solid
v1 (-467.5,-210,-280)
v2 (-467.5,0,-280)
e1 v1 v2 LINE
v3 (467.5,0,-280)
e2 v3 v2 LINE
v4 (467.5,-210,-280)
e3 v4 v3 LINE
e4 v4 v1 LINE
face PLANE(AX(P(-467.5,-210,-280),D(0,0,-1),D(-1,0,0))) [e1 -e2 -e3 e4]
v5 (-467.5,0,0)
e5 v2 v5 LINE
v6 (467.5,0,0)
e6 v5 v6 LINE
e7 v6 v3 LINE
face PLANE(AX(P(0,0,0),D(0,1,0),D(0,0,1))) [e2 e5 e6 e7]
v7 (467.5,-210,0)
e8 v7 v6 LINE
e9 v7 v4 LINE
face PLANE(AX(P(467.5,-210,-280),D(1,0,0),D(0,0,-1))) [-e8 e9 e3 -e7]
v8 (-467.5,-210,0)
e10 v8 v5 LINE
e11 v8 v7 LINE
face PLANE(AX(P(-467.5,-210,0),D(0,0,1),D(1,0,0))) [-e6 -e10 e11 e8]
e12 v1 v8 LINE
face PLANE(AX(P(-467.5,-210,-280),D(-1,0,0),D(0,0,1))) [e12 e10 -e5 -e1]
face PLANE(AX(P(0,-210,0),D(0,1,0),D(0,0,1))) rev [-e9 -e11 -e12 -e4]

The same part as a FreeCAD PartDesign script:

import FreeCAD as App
import Part
import Sketcher
from FreeCAD import Vector

doc = App.newDocument("Part")
params = doc.addObject("Spreadsheet::Sheet", "Params")
for row, (alias, value) in enumerate([
    ("sketch1_width", "935 mm"),
    ("sketch1_height", "280 mm"),
    ("pad1_length", "210 mm"),
], start=1):
    params.set(f"A{row}", alias)
    params.set(f"B{row}", "=" + value)
    params.setAlias(f"B{row}", alias)

body = doc.addObject("PartDesign::Body", "Body")

sketch1 = body.newObject("Sketcher::SketchObject", "Sketch")
sketch1.AttachmentSupport = (doc.getObject("XZ_Plane"), [""])
sketch1.MapMode = "FlatFace"
sketch1.addGeometry([
    Part.LineSegment(Vector(-468, -280, 0), Vector(-468, 0, 0)),
    Part.LineSegment(Vector(-468, 0, 0), Vector(468, 0, 0)),
    Part.LineSegment(Vector(468, 0, 0), Vector(468, -280, 0)),
    Part.LineSegment(Vector(468, -280, 0), Vector(-468, -280, 0)),
], False)
sketch1.addConstraint([
    Sketcher.Constraint("Coincident", 0, 2, 1, 1),
    Sketcher.Constraint("Coincident", 1, 2, 2, 1),
    Sketcher.Constraint("Coincident", 2, 2, 3, 1),
    Sketcher.Constraint("Coincident", 3, 2, 0, 1),
    Sketcher.Constraint("Vertical", 0),
    Sketcher.Constraint("Horizontal", 1),
    Sketcher.Constraint("Vertical", 2),
    Sketcher.Constraint("Horizontal", 3),
    Sketcher.Constraint("Symmetric", 0, 2, 1, 2, -1, 1),
    Sketcher.Constraint("DistanceX", 1, 1, 1, 2, 935.0),
    Sketcher.Constraint("DistanceY", 0, 1, 0, 2, 280.0),
])
sketch1.setExpression("Constraints[9]", "Params.sketch1_width")
sketch1.setExpression("Constraints[10]", "Params.sketch1_height")
pad1 = body.newObject("PartDesign::Pad", "Pad")
pad1.Profile = sketch1
pad1.setExpression("Length", "Params.pad1_length")

doc.recompute()
